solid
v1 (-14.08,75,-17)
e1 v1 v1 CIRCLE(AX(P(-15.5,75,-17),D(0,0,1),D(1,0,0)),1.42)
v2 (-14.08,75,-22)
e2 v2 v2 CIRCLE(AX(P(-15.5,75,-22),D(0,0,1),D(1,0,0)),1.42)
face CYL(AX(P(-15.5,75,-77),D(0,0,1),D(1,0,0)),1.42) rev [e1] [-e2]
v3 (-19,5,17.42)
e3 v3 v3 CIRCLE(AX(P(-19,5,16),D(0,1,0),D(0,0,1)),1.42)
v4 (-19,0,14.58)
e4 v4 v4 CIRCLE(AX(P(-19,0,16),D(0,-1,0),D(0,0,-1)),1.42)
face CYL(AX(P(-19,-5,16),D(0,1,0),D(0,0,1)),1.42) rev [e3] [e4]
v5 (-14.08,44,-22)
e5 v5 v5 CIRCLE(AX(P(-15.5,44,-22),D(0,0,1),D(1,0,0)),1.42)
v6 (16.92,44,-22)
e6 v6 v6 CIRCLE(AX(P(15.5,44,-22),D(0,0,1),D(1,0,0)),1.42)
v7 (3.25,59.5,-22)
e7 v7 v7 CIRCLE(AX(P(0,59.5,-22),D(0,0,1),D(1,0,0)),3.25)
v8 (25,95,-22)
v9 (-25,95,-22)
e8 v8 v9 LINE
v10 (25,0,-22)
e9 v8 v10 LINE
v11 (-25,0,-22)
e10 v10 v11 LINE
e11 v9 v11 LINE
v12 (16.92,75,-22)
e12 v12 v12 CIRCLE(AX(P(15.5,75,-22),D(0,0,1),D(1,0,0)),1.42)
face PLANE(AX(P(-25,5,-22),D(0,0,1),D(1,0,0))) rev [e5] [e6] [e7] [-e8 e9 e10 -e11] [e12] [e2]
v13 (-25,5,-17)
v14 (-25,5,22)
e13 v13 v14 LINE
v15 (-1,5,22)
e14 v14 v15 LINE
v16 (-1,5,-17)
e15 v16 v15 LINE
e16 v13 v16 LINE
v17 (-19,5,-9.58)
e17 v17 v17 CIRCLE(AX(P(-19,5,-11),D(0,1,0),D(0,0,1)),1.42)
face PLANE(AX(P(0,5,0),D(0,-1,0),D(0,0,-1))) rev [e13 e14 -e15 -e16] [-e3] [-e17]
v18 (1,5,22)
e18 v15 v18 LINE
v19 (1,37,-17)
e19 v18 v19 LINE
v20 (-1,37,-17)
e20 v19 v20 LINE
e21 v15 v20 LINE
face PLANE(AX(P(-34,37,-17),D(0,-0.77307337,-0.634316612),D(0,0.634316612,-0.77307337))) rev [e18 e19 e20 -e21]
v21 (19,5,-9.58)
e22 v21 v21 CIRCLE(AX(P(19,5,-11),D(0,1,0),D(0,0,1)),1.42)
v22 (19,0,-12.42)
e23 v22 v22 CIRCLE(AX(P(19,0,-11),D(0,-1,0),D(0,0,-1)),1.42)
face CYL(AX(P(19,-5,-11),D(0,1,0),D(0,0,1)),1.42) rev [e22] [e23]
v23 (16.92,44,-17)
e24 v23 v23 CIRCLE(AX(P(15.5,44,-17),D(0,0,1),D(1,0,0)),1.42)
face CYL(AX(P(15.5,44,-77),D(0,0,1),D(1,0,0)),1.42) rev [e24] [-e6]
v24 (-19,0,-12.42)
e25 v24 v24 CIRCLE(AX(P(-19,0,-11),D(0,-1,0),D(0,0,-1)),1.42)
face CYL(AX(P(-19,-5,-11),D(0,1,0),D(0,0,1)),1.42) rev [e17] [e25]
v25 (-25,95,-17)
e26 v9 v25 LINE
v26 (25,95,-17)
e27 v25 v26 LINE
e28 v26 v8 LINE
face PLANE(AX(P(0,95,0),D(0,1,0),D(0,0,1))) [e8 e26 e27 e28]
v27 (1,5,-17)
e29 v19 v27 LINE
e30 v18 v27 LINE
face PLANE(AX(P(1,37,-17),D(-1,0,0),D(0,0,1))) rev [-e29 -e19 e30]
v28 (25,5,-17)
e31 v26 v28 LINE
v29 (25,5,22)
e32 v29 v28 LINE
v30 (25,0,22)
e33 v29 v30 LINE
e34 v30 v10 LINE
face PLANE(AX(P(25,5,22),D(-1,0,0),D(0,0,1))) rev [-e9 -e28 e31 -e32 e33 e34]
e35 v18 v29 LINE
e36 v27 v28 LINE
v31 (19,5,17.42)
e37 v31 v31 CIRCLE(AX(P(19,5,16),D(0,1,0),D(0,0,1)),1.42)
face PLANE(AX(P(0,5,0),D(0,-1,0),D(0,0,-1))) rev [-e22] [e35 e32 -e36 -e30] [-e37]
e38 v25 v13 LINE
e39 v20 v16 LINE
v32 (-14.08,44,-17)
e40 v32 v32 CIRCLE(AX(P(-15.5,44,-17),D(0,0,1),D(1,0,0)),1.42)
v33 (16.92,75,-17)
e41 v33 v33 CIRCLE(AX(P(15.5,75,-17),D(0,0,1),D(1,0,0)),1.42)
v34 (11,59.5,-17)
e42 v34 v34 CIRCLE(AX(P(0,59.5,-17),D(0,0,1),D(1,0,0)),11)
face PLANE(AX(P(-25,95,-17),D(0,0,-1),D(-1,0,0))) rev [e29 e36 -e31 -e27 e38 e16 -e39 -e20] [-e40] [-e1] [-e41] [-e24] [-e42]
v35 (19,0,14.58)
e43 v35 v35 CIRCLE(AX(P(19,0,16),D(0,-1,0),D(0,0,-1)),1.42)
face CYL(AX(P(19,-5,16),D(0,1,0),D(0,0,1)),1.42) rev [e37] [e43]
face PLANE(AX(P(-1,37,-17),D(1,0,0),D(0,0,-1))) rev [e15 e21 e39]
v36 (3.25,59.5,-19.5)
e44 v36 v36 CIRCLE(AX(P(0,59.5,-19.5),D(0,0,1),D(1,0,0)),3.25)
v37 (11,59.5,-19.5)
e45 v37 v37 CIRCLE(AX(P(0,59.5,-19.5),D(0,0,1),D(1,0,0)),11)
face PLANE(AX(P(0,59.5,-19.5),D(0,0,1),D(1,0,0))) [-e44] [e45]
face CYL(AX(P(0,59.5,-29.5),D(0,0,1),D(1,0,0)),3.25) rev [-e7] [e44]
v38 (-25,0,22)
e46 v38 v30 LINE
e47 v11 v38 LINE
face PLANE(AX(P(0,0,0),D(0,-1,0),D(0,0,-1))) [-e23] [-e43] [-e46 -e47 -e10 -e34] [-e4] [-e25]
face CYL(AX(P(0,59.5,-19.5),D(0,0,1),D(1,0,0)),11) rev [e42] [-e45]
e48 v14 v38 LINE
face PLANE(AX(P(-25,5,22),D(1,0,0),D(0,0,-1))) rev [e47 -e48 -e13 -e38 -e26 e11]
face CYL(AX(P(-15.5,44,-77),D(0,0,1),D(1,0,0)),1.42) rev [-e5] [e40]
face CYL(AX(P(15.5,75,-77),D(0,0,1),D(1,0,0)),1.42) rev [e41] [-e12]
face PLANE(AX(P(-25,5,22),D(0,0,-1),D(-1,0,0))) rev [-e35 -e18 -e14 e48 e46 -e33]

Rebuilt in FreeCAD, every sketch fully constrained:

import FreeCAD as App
import Part
import Sketcher
from FreeCAD import Vector
Q = App.Units.Quantity

doc = App.newDocument("Part")
body = doc.addObject("PartDesign::Body", "Body")

sketch1 = body.newObject("Sketcher::SketchObject", "Sketch")
sketch1.AttachmentSupport = (doc.getObject("XZ_Plane"), [""])
sketch1.MapMode = "FlatFace"
sketch1.addGeometry([
    Part.LineSegment(Vector(-25, -22, 0), Vector(-25, 22, 0)),
    Part.LineSegment(Vector(-25, 22, 0), Vector(25, 22, 0)),
    Part.LineSegment(Vector(25, 22, 0), Vector(25, -22, 0)),
    Part.LineSegment(Vector(25, -22, 0), Vector(-25, -22, 0)),
], False)
sketch1.addConstraint([
    Sketcher.Constraint("Coincident", 0, 2, 1, 1),
    Sketcher.Constraint("Coincident", 1, 2, 2, 1),
    Sketcher.Constraint("Coincident", 2, 2, 3, 1),
    Sketcher.Constraint("Coincident", 3, 2, 0, 1),
    Sketcher.Constraint("Vertical", 0),
    Sketcher.Constraint("Horizontal", 1),
    Sketcher.Constraint("Vertical", 2),
    Sketcher.Constraint("Horizontal", 3),
    Sketcher.Constraint("Symmetric", 0, 2, 2, 2, -1, 1),
    Sketcher.Constraint("DistanceX", 1, 1, 1, 2, Q("50 mm")),
    Sketcher.Constraint("DistanceY", 0, 1, 0, 2, Q("44 mm")),
])
pad1 = body.newObject("PartDesign::Pad", "Pad")
pad1.Profile = sketch1
pad1.Length = 5
pad1.Reversed = True

sketch2 = body.newObject("Sketcher::SketchObject", "Sketch001")
sketch2.AttachmentSupport = (doc.getObject("XZ_Plane"), [""])
sketch2.MapMode = "FlatFace"
sketch2.AttachmentOffset = App.Placement(Vector(0, 0, -5), App.Rotation())
sketch2.addGeometry([
    Part.LineSegment(Vector(-25, -22, 0), Vector(-25, -17, 0)),
    Part.LineSegment(Vector(-25, -17, 0), Vector(25, -17, 0)),
    Part.LineSegment(Vector(25, -17, 0), Vector(25, -22, 0)),
    Part.LineSegment(Vector(25, -22, 0), Vector(-25, -22, 0)),
], False)
sketch2.addConstraint([
    Sketcher.Constraint("Coincident", 0, 2, 1, 1),
    Sketcher.Constraint("Coincident", 1, 2, 2, 1),
    Sketcher.Constraint("Coincident", 2, 2, 3, 1),
    Sketcher.Constraint("Coincident", 3, 2, 0, 1),
    Sketcher.Constraint("Vertical", 0),
    Sketcher.Constraint("Horizontal", 1),
    Sketcher.Constraint("Vertical", 2),
    Sketcher.Constraint("Horizontal", 3),
    Sketcher.Constraint("DistanceX", 1, 1, 1, 2, Q("50 mm")),
    Sketcher.Constraint("DistanceY", 0, 1, 0, 2, Q("5 mm")),
    Sketcher.Constraint("DistanceX", 0, 2, -1, 1, Q("25 mm")),
    Sketcher.Constraint("DistanceY", 0, 2, -1, 1, Q("17 mm")),
])
pad2 = body.newObject("PartDesign::Pad", "Pad001")
pad2.Profile = sketch2
pad2.Length = 90
pad2.Reversed = True

sketch3 = body.newObject("Sketcher::SketchObject", "Sketch002")
sketch3.AttachmentSupport = (doc.getObject("XY_Plane"), [""])
sketch3.MapMode = "FlatFace"
sketch3.AttachmentOffset = App.Placement(Vector(0, 0, -17), App.Rotation())
sketch3.addGeometry([
    Part.Circle(Vector(-15.5, 44, 0), Vector(0, 0, 1), 1.42),
    Part.Circle(Vector(15.5, 44, 0), Vector(0, 0, 1), 1.42),
    Part.Circle(Vector(15.5, 75, 0), Vector(0, 0, 1), 1.42),
    Part.Circle(Vector(-15.5, 75, 0), Vector(0, 0, 1), 1.42),
], False)
sketch3.addConstraint([
    Sketcher.Constraint("Equal", 0, 1),
    Sketcher.Constraint("Equal", 1, 2),
    Sketcher.Constraint("Equal", 2, 3),
    Sketcher.Constraint("Symmetric", 0, 3, 1, 3, -2),
    Sketcher.Constraint("Symmetric", 2, 3, 3, 3, -2),
    Sketcher.Constraint("Vertical", 1, 3, 2, 3),
    Sketcher.Constraint("Diameter", 0, Q("2.84 mm")),
    Sketcher.Constraint("DistanceY", -1, 1, 0, 3, Q("44 mm")),
    Sketcher.Constraint("DistanceY", -1, 1, 2, 3, Q("75 mm")),
    Sketcher.Constraint("DistanceX", 0, 3, 1, 3, Q("31 mm")),
])
pocket1 = body.newObject("PartDesign::Pocket", "Pocket")
pocket1.Profile = sketch3
pocket1.Length = 60

sketch4 = body.newObject("Sketcher::SketchObject", "Sketch003")
sketch4.AttachmentSupport = (doc.getObject("XY_Plane"), [""])
sketch4.MapMode = "FlatFace"
sketch4.AttachmentOffset = App.Placement(Vector(0, 0, -17), App.Rotation())
sketch4.addGeometry(Part.Circle(Vector(0, 59.5, 0), Vector(0, 0, 1), 11), False)
sketch4.addConstraint([
    Sketcher.Constraint("PointOnObject", 0, 3, -2),
    Sketcher.Constraint("Diameter", 0, Q("22 mm")),
    Sketcher.Constraint("DistanceY", -1, 1, 0, 3, Q("59.5 mm")),
])
pocket2 = body.newObject("PartDesign::Pocket", "Pocket001")
pocket2.Profile = sketch4
pocket2.Length = 2.5

sketch5 = body.newObject("Sketcher::SketchObject", "Sketch004")
sketch5.AttachmentSupport = (doc.getObject("XY_Plane"), [""])
sketch5.MapMode = "FlatFace"
sketch5.AttachmentOffset = App.Placement(Vector(0, 0, -19.5), App.Rotation())
sketch5.addGeometry(Part.Circle(Vector(0, 59.5, 0), Vector(0, 0, 1), 3.25), False)
sketch5.addConstraint([
    Sketcher.Constraint("PointOnObject", 0, 3, -2),
    Sketcher.Constraint("Diameter", 0, Q("6.5 mm")),
    Sketcher.Constraint("DistanceY", -1, 1, 0, 3, Q("59.5 mm")),
])
pocket3 = body.newObject("PartDesign::Pocket", "Pocket002")
pocket3.Profile = sketch5
pocket3.Length = 10

sketch6 = body.newObject("Sketcher::SketchObject", "Sketch005")
sketch6.AttachmentSupport = (doc.getObject("XZ_Plane"), [""])
sketch6.MapMode = "FlatFace"
sketch6.AttachmentOffset = App.Placement(Vector(0, 0, -5), App.Rotation())
sketch6.addGeometry([
    Part.Circle(Vector(-19, -11, 0), Vector(0, 0, 1), 1.42),
    Part.Circle(Vector(-19, 16, 0), Vector(0, 0, 1), 1.42),
    Part.Circle(Vector(19, 16, 0), Vector(0, 0, 1), 1.42),
    Part.Circle(Vector(19, -11, 0), Vector(0, 0, 1), 1.42),
], False)
sketch6.addConstraint([
    Sketcher.Constraint("Equal", 0, 1),
    Sketcher.Constraint("Equal", 1, 2),
    Sketcher.Constraint("Equal", 2, 3),
    Sketcher.Constraint("Symmetric", 1, 3, 2, 3, -2),
    Sketcher.Constraint("Symmetric", 0, 3, 3, 3, -2),
    Sketcher.Constraint("Vertical", 0, 3, 1, 3),
    Sketcher.Constraint("Diameter", 0, Q("2.84 mm")),
    Sketcher.Constraint("DistanceX", 0, 3, -1, 1, Q("19 mm")),
    Sketcher.Constraint("DistanceY", 0, 3, -1, 1, Q("11 mm")),
    Sketcher.Constraint("DistanceY", -1, 1, 1, 3, Q("16 mm")),
])
pocket4 = body.newObject("PartDesign::Pocket", "Pocket003")
pocket4.Profile = sketch6
pocket4.Length = 10
pocket4.Reversed = True

sketch7 = body.newObject("Sketcher::SketchObject", "Sketch006")
sketch7.AttachmentSupport = (doc.getObject("XZ_Plane"), [""])
sketch7.MapMode = "FlatFace"
sketch7.AttachmentOffset = App.Placement(Vector(0, 0, -5), App.Rotation())
sketch7.addGeometry([
    Part.LineSegment(Vector(-1, -17, 0), Vector(-1, 22, 0)),
    Part.LineSegment(Vector(-1, 22, 0), Vector(1, 22, 0)),
    Part.LineSegment(Vector(1, 22, 0), Vector(1, -17, 0)),
    Part.LineSegment(Vector(1, -17, 0), Vector(-1, -17, 0)),
], False)
sketch7.addConstraint([
    Sketcher.Constraint("Coincident", 0, 2, 1, 1),
    Sketcher.Constraint("Coincident", 1, 2, 2, 1),
    Sketcher.Constraint("Coincident", 2, 2, 3, 1),
    Sketcher.Constraint("Coincident", 3, 2, 0, 1),
    Sketcher.Constraint("Vertical", 0),
    Sketcher.Constraint("Horizontal", 1),
    Sketcher.Constraint("Vertical", 2),
    Sketcher.Constraint("Horizontal", 3),
    Sketcher.Constraint("DistanceX", 1, 1, 1, 2, Q("2 mm")),
    Sketcher.Constraint("DistanceY", 0, 1, 0, 2, Q("39 mm")),
    Sketcher.Constraint("DistanceX", 0, 2, -1, 1, Q("1 mm")),
    Sketcher.Constraint("DistanceY", -1, 1, 0, 2, Q("22 mm")),
])
pad3 = body.newObject("PartDesign::Pad", "Pad002")
pad3.Profile = sketch7
pad3.Length = 32
pad3.Reversed = True

sketch8 = body.newObject("Sketcher::SketchObject", "Sketch007")
sketch8.AttachmentSupport = (doc.getObject("YZ_Plane"), [""])
sketch8.MapMode = "FlatFace"
sketch8.AttachmentOffset = App.Placement(Vector(0, 0, 1), App.Rotation())
sketch8.addGeometry([
    Part.LineSegment(Vector(5, 22, 0), Vector(37, -17, 0)),
    Part.LineSegment(Vector(37, -17, 0), Vector(37, 22, 0)),
    Part.LineSegment(Vector(37, 22, 0), Vector(5, 22, 0)),
], False)
sketch8.addConstraint([
    Sketcher.Constraint("Coincident", 0, 2, 1, 1),
    Sketcher.Constraint("Coincident", 1, 2, 2, 1),
    Sketcher.Constraint("Coincident", 2, 2, 0, 1),
    Sketcher.Constraint("Vertical", 1),
    Sketcher.Constraint("Horizontal", 2),
    Sketcher.Constraint("DistanceX", 2, 2, 2, 1, Q("32 mm")),
    Sketcher.Constraint("DistanceY", 1, 1, 1, 2, Q("39 mm")),
    Sketcher.Constraint("DistanceX", -1, 1, 0, 2, Q("37 mm")),
    Sketcher.Constraint("DistanceY", 0, 2, -1, 1, Q("17 mm")),
])
pocket5 = body.newObject("PartDesign::Pocket", "Pocket004")
pocket5.Profile = sketch8
pocket5.Length = 35

doc.recompute()
